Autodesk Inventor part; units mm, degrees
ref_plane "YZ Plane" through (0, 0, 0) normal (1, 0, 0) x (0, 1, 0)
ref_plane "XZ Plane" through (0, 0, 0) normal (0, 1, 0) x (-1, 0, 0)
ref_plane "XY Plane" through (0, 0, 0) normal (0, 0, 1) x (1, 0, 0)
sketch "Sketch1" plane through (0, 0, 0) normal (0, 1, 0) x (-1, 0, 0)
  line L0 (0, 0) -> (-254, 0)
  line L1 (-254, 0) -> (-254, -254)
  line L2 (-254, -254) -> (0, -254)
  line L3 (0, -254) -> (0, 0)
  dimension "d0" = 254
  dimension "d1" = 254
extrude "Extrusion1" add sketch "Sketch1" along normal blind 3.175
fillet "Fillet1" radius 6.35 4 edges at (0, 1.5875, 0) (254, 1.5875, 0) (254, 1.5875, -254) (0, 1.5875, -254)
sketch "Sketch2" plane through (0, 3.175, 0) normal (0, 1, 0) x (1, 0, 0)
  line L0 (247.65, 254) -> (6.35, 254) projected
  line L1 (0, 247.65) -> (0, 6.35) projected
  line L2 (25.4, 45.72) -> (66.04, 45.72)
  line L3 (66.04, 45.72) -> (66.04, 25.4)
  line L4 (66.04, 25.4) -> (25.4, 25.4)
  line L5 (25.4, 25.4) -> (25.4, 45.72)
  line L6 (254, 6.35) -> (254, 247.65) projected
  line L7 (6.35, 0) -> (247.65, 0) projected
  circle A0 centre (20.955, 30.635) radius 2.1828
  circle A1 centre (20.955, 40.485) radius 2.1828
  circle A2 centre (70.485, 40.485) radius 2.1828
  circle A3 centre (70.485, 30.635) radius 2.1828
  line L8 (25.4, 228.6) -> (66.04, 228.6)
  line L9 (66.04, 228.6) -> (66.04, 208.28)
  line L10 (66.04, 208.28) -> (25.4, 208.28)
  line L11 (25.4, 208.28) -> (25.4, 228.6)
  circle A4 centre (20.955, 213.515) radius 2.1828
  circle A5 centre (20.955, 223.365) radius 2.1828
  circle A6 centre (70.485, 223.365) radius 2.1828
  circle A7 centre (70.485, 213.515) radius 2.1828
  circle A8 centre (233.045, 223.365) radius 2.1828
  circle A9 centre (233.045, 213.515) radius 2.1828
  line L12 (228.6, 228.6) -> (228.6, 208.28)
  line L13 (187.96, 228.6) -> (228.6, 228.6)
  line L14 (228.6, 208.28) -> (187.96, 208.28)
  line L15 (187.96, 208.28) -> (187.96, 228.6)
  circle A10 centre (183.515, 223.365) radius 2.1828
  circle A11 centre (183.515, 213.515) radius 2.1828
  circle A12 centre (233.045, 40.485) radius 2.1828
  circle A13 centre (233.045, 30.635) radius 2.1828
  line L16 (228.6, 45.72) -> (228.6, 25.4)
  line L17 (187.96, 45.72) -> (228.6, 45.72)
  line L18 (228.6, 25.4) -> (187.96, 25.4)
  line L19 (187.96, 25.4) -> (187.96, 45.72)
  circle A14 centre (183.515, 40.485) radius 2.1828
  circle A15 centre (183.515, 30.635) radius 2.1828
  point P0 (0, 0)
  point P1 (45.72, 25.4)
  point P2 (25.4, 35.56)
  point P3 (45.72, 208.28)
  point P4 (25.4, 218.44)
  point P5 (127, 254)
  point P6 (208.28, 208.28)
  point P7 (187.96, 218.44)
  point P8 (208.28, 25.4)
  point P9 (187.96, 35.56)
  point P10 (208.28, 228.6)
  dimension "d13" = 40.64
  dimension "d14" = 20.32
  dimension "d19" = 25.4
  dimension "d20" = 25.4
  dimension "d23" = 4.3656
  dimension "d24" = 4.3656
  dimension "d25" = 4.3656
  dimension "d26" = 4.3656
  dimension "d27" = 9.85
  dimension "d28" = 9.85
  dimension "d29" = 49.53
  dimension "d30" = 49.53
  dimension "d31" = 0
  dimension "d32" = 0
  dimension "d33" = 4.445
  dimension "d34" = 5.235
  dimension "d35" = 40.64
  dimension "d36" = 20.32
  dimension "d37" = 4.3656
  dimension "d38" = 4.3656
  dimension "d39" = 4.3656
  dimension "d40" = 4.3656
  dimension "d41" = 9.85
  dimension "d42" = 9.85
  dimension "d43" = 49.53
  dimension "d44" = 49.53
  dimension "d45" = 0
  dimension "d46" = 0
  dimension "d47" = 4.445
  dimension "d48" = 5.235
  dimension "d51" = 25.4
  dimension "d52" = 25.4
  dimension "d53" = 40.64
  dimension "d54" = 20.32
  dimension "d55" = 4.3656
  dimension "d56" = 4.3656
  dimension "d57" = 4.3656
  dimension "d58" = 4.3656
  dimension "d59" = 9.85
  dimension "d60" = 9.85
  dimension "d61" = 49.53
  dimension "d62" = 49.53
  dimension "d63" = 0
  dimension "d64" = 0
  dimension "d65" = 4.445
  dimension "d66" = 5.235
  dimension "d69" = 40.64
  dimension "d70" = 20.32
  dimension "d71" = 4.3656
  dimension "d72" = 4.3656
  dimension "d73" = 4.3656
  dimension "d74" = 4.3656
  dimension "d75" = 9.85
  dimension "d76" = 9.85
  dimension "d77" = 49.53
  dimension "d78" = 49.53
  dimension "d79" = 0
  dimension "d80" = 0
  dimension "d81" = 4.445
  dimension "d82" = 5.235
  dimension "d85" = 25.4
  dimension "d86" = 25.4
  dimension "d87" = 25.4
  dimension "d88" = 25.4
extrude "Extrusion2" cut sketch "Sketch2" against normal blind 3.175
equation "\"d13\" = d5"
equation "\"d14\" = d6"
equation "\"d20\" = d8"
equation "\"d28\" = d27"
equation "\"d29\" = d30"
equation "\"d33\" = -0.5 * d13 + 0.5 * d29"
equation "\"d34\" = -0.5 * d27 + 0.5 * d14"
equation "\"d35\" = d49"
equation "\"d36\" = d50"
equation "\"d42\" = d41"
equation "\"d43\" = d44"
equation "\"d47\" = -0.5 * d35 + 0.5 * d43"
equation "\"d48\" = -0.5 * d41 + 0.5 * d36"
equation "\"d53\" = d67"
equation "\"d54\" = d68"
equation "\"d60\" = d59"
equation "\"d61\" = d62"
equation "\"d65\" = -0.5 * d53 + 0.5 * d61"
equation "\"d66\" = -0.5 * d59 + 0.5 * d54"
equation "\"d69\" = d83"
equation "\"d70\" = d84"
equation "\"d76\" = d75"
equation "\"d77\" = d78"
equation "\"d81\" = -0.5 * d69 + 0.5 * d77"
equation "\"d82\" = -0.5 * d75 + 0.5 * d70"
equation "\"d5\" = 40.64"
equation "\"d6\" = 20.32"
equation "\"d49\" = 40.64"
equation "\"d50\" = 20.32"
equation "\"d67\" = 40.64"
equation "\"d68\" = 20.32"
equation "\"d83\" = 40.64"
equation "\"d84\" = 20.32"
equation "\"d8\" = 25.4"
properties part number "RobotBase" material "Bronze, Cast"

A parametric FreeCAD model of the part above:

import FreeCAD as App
import Part
import Sketcher
from FreeCAD import Vector
Q = App.Units.Quantity


def edges_at(feature, points):
    """Names of the edges that pass closest to the given points."""
    edges = feature.Shape.Edges
    near = lambda p: min(range(len(edges)), key=lambda i: edges[i].distToShape(Part.Vertex(*p))[0])
    return sorted({f"Edge{near(p) + 1}" for p in points})


def add_polygon(sketch, points):
    """Adds a closed chain of lines whose ends are joined by coincident constraints."""
    first, n = sketch.GeometryCount, len(points)
    for a, b in zip(points, points[1:] + points[:1]):
        sketch.addGeometry(Part.LineSegment(App.Vector(*a, 0), App.Vector(*b, 0)), False)
    for i in range(n):
        sketch.addConstraint(Sketcher.Constraint("Coincident", first + i, 2, first + (i + 1) % n, 1))

doc = App.newDocument("Part")
body = doc.addObject("PartDesign::Body", "Body")

sketch1 = doc.addObject("Sketcher::SketchObject", "Sketch")
body.addObject(sketch1)
sketch1.AttachmentSupport = (doc.XZ_Plane, [""])
sketch1.MapMode = "FlatFace"
add_polygon(sketch1, [(0, -254), (0, 0), (254, 0), (254, -254)])
sketch1.addConstraint(Sketcher.Constraint("Vertical", 0))
sketch1.addConstraint(Sketcher.Constraint("Horizontal", 1))
sketch1.addConstraint(Sketcher.Constraint("Vertical", 2))
sketch1.addConstraint(Sketcher.Constraint("Horizontal", 3))
sketch1.addConstraint(Sketcher.Constraint("Coincident", 0, 2, -1, 1))
sketch1.addConstraint(Sketcher.Constraint("Equal", 3, 0))
sketch1.addConstraint(Sketcher.Constraint("DistanceX", 1, 1, 1, 2, Q("10 in")))
pad1 = doc.addObject("PartDesign::Pad", "Pad")
body.addObject(pad1)
pad1.Profile = sketch1
pad1.Length = Q("0.125 in")
pad1.Reversed = True
doc.recompute()

fillet = doc.addObject("PartDesign::Fillet", "Fillet")
body.addObject(fillet)
fillet.Base = (pad1, edges_at(pad1, [
    (0, 1.587, 0),
    (254, 1.587, 0),
    (254, 1.587, -254),
    (0, 1.587, -254),
]))
fillet.Radius = Q("0.25 in")

sketch2 = doc.addObject("Sketcher::SketchObject", "Sketch001")
body.addObject(sketch2)
sketch2.AttachmentSupport = (doc.XZ_Plane, [""])
sketch2.MapMode = "FlatFace"
sketch2.AttachmentOffset = App.Placement(Vector(0, 0, -0.125 * 25.4), App.Rotation())
add_polygon(sketch2, [(66, -45.7), (25.4, -45.7), (25.4, -25.4), (66, -25.4)])
sketch2.addGeometry(Part.Circle(Vector(21, -30.6, 0), Vector(0, 0, 1), 2.2), False)
sketch2.addGeometry(Part.Circle(Vector(21, -40.5, 0), Vector(0, 0, 1), 2.2), False)
sketch2.addGeometry(Part.Circle(Vector(70.5, -40.5, 0), Vector(0, 0, 1), 2.2), False)
sketch2.addGeometry(Part.Circle(Vector(70.5, -30.6, 0), Vector(0, 0, 1), 2.2), False)
add_polygon(sketch2, [(66, -228.6), (25.4, -228.6), (25.4, -208.3), (66, -208.3)])
sketch2.addGeometry(Part.Circle(Vector(21, -213.5, 0), Vector(0, 0, 1), 2.2), False)
sketch2.addGeometry(Part.Circle(Vector(21, -223.4, 0), Vector(0, 0, 1), 2.2), False)
sketch2.addGeometry(Part.Circle(Vector(70.5, -223.4, 0), Vector(0, 0, 1), 2.2), False)
sketch2.addGeometry(Part.Circle(Vector(70.5, -213.5, 0), Vector(0, 0, 1), 2.2), False)
sketch2.addGeometry(Part.Circle(Vector(233, -223.4, 0), Vector(0, 0, 1), 2.2), False)
sketch2.addGeometry(Part.Circle(Vector(233, -213.5, 0), Vector(0, 0, 1), 2.2), False)
add_polygon(sketch2, [(228.6, -208.3), (228.6, -228.6), (188, -228.6), (188, -208.3)])
sketch2.addGeometry(Part.Circle(Vector(183.5, -223.4, 0), Vector(0, 0, 1), 2.2), False)
sketch2.addGeometry(Part.Circle(Vector(183.5, -213.5, 0), Vector(0, 0, 1), 2.2), False)
sketch2.addGeometry(Part.Circle(Vector(233, -40.5, 0), Vector(0, 0, 1), 2.2), False)
sketch2.addGeometry(Part.Circle(Vector(233, -30.6, 0), Vector(0, 0, 1), 2.2), False)
add_polygon(sketch2, [(228.6, -25.4), (228.6, -45.7), (188, -45.7), (188, -25.4)])
sketch2.addGeometry(Part.Circle(Vector(183.5, -40.5, 0), Vector(0, 0, 1), 2.2), False)
sketch2.addGeometry(Part.Circle(Vector(183.5, -30.6, 0), Vector(0, 0, 1), 2.2), False)
sketch2.addConstraint(Sketcher.Constraint("Horizontal", 0))
sketch2.addConstraint(Sketcher.Constraint("Vertical", 1))
sketch2.addConstraint(Sketcher.Constraint("Horizontal", 2))
sketch2.addConstraint(Sketcher.Constraint("Vertical", 3))
sketch2.addConstraint(Sketcher.Constraint("Horizontal", 8))
sketch2.addConstraint(Sketcher.Constraint("Vertical", 9))
sketch2.addConstraint(Sketcher.Constraint("Horizontal", 10))
sketch2.addConstraint(Sketcher.Constraint("Vertical", 11))
sketch2.addConstraint(Sketcher.Constraint("Vertical", 18))
sketch2.addConstraint(Sketcher.Constraint("Horizontal", 19))
sketch2.addConstraint(Sketcher.Constraint("Vertical", 20))
sketch2.addConstraint(Sketcher.Constraint("Horizontal", 21))
sketch2.addConstraint(Sketcher.Constraint("Vertical", 26))
sketch2.addConstraint(Sketcher.Constraint("Horizontal", 27))
sketch2.addConstraint(Sketcher.Constraint("Vertical", 28))
sketch2.addConstraint(Sketcher.Constraint("Horizontal", 29))
sketch2.addConstraint(Sketcher.Constraint("Equal", 4, 5))
sketch2.addConstraint(Sketcher.Constraint("Equal", 5, 6))
sketch2.addConstraint(Sketcher.Constraint("Equal", 6, 7))
sketch2.addConstraint(Sketcher.Constraint("Equal", 7, 12))
sketch2.addConstraint(Sketcher.Constraint("Equal", 12, 13))
sketch2.addConstraint(Sketcher.Constraint("Equal", 13, 14))
sketch2.addConstraint(Sketcher.Constraint("Equal", 14, 15))
sketch2.addConstraint(Sketcher.Constraint("Equal", 15, 16))
sketch2.addConstraint(Sketcher.Constraint("Equal", 16, 17))
sketch2.addConstraint(Sketcher.Constraint("Equal", 17, 22))
sketch2.addConstraint(Sketcher.Constraint("Equal", 22, 23))
sketch2.addConstraint(Sketcher.Constraint("Equal", 23, 24))
sketch2.addConstraint(Sketcher.Constraint("Equal", 24, 25))
sketch2.addConstraint(Sketcher.Constraint("Equal", 25, 30))
sketch2.addConstraint(Sketcher.Constraint("Equal", 30, 31))
sketch2.addConstraint(Sketcher.Constraint("Horizontal", 5, 3, 6, 3))
sketch2.addConstraint(Sketcher.Constraint("Horizontal", 4, 3, 7, 3))
sketch2.addConstraint(Sketcher.Constraint("Horizontal", 13, 3, 14, 3))
sketch2.addConstraint(Sketcher.Constraint("Horizontal", 12, 3, 15, 3))
sketch2.addConstraint(Sketcher.Constraint("Horizontal", 14, 3, 16, 3))
sketch2.addConstraint(Sketcher.Constraint("Horizontal", 15, 3, 17, 3))
sketch2.addConstraint(Sketcher.Constraint("Horizontal", 16, 3, 22, 3))
sketch2.addConstraint(Sketcher.Constraint("Horizontal", 17, 3, 23, 3))
sketch2.addConstraint(Sketcher.Constraint("Horizontal", 6, 3, 24, 3))
sketch2.addConstraint(Sketcher.Constraint("Horizontal", 7, 3, 25, 3))
sketch2.addConstraint(Sketcher.Constraint("Horizontal", 24, 3, 30, 3))
sketch2.addConstraint(Sketcher.Constraint("Horizontal", 25, 3, 31, 3))
sketch2.addConstraint(Sketcher.Constraint("Horizontal", 11, 2, 18, 2))
sketch2.addConstraint(Sketcher.Constraint("Horizontal", 10, 2, 20, 2))
sketch2.addConstraint(Sketcher.Constraint("Horizontal", 3, 2, 26, 2))
sketch2.addConstraint(Sketcher.Constraint("Horizontal", 2, 2, 28, 2))
sketch2.addConstraint(Sketcher.Constraint("Vertical", 4, 3, 5, 3))
sketch2.addConstraint(Sketcher.Constraint("Vertical", 6, 3, 7, 3))
sketch2.addConstraint(Sketcher.Constraint("Vertical", 5, 3, 12, 3))
sketch2.addConstraint(Sketcher.Constraint("Vertical", 12, 3, 13, 3))
sketch2.addConstraint(Sketcher.Constraint("Vertical", 7, 3, 14, 3))
sketch2.addConstraint(Sketcher.Constraint("Vertical", 14, 3, 15, 3))
sketch2.addConstraint(Sketcher.Constraint("Vertical", 16, 3, 17, 3))
sketch2.addConstraint(Sketcher.Constraint("Vertical", 22, 3, 23, 3))
sketch2.addConstraint(Sketcher.Constraint("Vertical", 17, 3, 24, 3))
sketch2.addConstraint(Sketcher.Constraint("Vertical", 24, 3, 25, 3))
sketch2.addConstraint(Sketcher.Constraint("Vertical", 23, 3, 30, 3))
sketch2.addConstraint(Sketcher.Constraint("Vertical", 30, 3, 31, 3))
sketch2.addConstraint(Sketcher.Constraint("Vertical", 1, 2, 8, 2))
sketch2.addConstraint(Sketcher.Constraint("Vertical", 3, 2, 10, 2))
sketch2.addConstraint(Sketcher.Constraint("Vertical", 21, 2, 26, 2))
sketch2.addConstraint(Sketcher.Constraint("Vertical", 20, 2, 27, 2))
sketch2.addConstraint(Sketcher.Constraint("Equal", 10, 19))
sketch2.addConstraint(Sketcher.Constraint("Equal", 3, 9))
sketch2.addConstraint(Sketcher.Constraint("Diameter", 4, Q("0.171874 in")))
sketch2.addConstraint(Sketcher.Constraint("DistanceX", 0, 2, 0, 1, Q("1.6 in")))
sketch2.addConstraint(Sketcher.Constraint("DistanceY", 1, 1, 1, 2, Q("0.8 in")))
sketch2.addConstraint(Sketcher.Constraint("DistanceX", -1, 1, 0, 2, Q("1 in")))
sketch2.addConstraint(Sketcher.Constraint("DistanceY", 1, 2, -1, 1, Q("1 in")))
sketch2.addConstraint(Sketcher.Constraint("DistanceX", 5, 3, 6, 3, Q("1.95 in")))
sketch2.addConstraint(Sketcher.Constraint("DistanceX", 22, 3, 16, 3, Q("1.95 in")))
sketch2.addConstraint(Sketcher.Constraint("DistanceY", 8, 2, -1, 1, Q("9 in")))
sketch2.addConstraint(Sketcher.Constraint("DistanceX", -1, 1, 18, 2, Q("9 in")))
sketch2.addConstraint(Sketcher.Constraint("DistanceX", 5, 3, 0, 2, Q("0.175 in")))
sketch2.addConstraint(Sketcher.Constraint("DistanceX", 18, 2, 16, 3, Q("0.175 in")))
sketch2.addConstraint(Sketcher.Constraint("DistanceY", 5, 3, 4, 3, Q("0.3878 in")))
sketch2.addConstraint(Sketcher.Constraint("DistanceY", 12, 3, 4, 3, Q("7.2 in")))
sketch2.addConstraint(Sketcher.Constraint("DistanceY", 13, 3, 12, 3, Q("0.3878 in")))
sketch2.addConstraint(Sketcher.Constraint("DistanceY", 0, 2, 5, 3, Q("0.2061 in")))
pocket1 = doc.addObject("PartDesign::Pocket", "Pocket")
body.addObject(pocket1)
pocket1.Profile = sketch2
pocket1.Length = Q("0.125 in")
pocket1.Reversed = True

doc.recompute()
